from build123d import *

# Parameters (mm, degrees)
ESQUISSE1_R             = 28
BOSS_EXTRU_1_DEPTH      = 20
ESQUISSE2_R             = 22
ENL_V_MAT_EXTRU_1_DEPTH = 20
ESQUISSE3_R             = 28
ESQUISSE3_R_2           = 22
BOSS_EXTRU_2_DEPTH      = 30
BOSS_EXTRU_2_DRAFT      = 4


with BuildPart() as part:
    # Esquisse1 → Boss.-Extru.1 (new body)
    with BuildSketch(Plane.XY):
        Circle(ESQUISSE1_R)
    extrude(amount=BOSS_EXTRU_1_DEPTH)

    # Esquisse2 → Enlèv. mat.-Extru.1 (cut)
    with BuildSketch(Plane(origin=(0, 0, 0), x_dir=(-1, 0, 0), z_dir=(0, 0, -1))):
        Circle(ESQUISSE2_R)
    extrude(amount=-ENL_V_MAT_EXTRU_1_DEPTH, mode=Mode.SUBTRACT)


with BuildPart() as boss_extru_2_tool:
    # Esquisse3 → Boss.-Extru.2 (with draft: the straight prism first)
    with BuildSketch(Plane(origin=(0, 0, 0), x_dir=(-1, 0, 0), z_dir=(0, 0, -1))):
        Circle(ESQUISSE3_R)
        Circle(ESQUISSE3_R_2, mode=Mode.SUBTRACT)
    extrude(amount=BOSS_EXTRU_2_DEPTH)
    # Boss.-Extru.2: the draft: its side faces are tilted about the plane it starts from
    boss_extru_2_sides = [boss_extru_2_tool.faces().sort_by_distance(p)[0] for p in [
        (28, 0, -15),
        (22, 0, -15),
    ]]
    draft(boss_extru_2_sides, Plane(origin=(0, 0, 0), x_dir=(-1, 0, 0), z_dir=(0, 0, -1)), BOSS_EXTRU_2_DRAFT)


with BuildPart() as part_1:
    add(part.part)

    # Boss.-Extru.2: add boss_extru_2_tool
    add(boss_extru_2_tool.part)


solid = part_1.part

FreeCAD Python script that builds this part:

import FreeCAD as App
import Part
import Sketcher
from FreeCAD import Vector
Q = App.Units.Quantity


def faces_at(feature, points):
    """Names of the faces that lie closest to the given points."""
    faces = feature.Shape.Faces
    near = lambda p: min(range(len(faces)), key=lambda i: faces[i].distToShape(Part.Vertex(*p))[0])
    return sorted({f"Face{near(p) + 1}" for p in points})

doc = App.newDocument("Part")
body = doc.addObject("PartDesign::Body", "Body")

# Sketch on XY plane
sketch1 = body.newObject("Sketcher::SketchObject", "Sketch")
sketch1.AttachmentSupport = (doc.getObject("XY_Plane"), [""])
sketch1.MapMode = "FlatFace"
sketch1.addGeometry(Part.Circle(Vector(0, 0, 0), Vector(0, 0, 1), 28), False)
sketch1.addConstraint([
    Sketcher.Constraint("Coincident", 0, 3, -1, 1),
    Sketcher.Constraint("Diameter", 0, Q("56 mm")),
])
pad1 = body.newObject("PartDesign::Pad", "Pad")
pad1.Profile = sketch1
pad1.Length = 20

# Sketch on XY plane
sketch2 = body.newObject("Sketcher::SketchObject", "Sketch001")
sketch2.AttachmentSupport = (doc.getObject("XY_Plane"), [""])
sketch2.MapMode = "FlatFace"
sketch2.addGeometry(Part.Circle(Vector(0, 0, 0), Vector(0, 0, 1), 22), False)
sketch2.addConstraint([
    Sketcher.Constraint("Coincident", 0, 3, -1, 1),
    Sketcher.Constraint("Diameter", 0, Q("44 mm")),
])
pocket1 = body.newObject("PartDesign::Pocket", "Pocket")
pocket1.Profile = sketch2
pocket1.Length = 20
pocket1.Reversed = True
body2 = doc.addObject("PartDesign::Body", "Body001")

# Sketch on XY plane
sketch3 = body2.newObject("Sketcher::SketchObject", "Sketch002")
sketch3.AttachmentSupport = (doc.getObject("XY_Plane001"), [""])
sketch3.MapMode = "FlatFace"
sketch3.addGeometry([
    Part.Circle(Vector(0, 0, 0), Vector(0, 0, 1), 28),
    Part.Circle(Vector(0, 0, 0), Vector(0, 0, 1), 22),
], False)
sketch3.addConstraint([
    Sketcher.Constraint("Coincident", 0, 3, -1, 1),
    Sketcher.Constraint("Coincident", 1, 3, -1, 1),
    Sketcher.Constraint("Diameter", 0, Q("56 mm")),
    Sketcher.Constraint("Diameter", 1, Q("44 mm")),
])
pad2 = body2.newObject("PartDesign::Pad", "Pad001")
pad2.Profile = sketch3
pad2.Length = 30
pad2.Reversed = True
doc.recompute()

draft = body2.newObject("PartDesign::Draft", "Draft")
draft.Base = (pad2, faces_at(pad2, [(28, 0, -15), (22, 0, -15)]))
draft.NeutralPlane = (doc.getObject("XY_Plane001"), [""])
draft.Angle = 4
draft.Reversed = True
doc.recompute()

boolean = body.newObject("PartDesign::Boolean", "Boolean")
boolean.Type = "Fuse"
boolean.addObjects([body2])

doc.recompute()
